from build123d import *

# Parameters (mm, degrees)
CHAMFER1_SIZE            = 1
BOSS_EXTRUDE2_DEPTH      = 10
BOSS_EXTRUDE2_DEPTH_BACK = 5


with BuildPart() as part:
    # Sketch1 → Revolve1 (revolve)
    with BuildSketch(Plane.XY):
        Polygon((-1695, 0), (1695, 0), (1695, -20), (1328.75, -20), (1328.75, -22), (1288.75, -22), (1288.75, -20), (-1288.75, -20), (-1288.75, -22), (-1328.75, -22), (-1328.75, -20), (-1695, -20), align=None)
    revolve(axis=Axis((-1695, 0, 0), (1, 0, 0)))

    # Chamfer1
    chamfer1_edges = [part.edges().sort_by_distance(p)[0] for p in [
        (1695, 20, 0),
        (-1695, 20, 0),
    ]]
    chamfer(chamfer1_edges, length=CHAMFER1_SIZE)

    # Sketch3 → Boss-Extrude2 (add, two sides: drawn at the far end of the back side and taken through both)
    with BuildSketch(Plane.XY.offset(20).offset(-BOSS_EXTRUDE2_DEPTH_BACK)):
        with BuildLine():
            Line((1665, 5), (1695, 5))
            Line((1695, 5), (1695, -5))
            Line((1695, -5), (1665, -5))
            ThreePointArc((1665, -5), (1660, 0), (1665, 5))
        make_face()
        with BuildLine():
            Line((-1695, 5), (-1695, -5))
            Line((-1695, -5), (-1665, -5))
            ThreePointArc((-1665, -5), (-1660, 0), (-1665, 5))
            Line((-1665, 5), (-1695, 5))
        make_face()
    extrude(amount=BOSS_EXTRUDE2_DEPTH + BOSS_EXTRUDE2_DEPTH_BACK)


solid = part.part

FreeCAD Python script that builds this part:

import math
import FreeCAD as App
import Part
import Sketcher
from FreeCAD import Vector
Q = App.Units.Quantity


def edges_at(feature, points):
    """Names of the edges that pass closest to the given points."""
    edges = feature.Shape.Edges
    near = lambda p: min(range(len(edges)), key=lambda i: edges[i].distToShape(Part.Vertex(*p))[0])
    return sorted({f"Edge{near(p) + 1}" for p in points})

doc = App.newDocument("Part")
body = doc.addObject("PartDesign::Body", "Body")

sketch1 = body.newObject("Sketcher::SketchObject", "Sketch")
sketch1.AttachmentSupport = (doc.getObject("XY_Plane"), [""])
sketch1.MapMode = "FlatFace"
sketch1.addGeometry([
    Part.LineSegment(Vector(1695, 0, 0), Vector(-1695, 0, 0)),
    Part.LineSegment(Vector(-1695, 0, 0), Vector(-1695, -20, 0)),
    Part.LineSegment(Vector(-1695, -20, 0), Vector(-1328.75, -20, 0)),
    Part.LineSegment(Vector(-1328.75, -20, 0), Vector(-1328.75, -22, 0)),
    Part.LineSegment(Vector(-1328.75, -22, 0), Vector(-1288.75, -22, 0)),
    Part.LineSegment(Vector(-1288.75, -22, 0), Vector(-1288.75, -20, 0)),
    Part.LineSegment(Vector(-1288.75, -20, 0), Vector(1288.75, -20, 0)),
    Part.LineSegment(Vector(1288.75, -20, 0), Vector(1288.75, -22, 0)),
    Part.LineSegment(Vector(1288.75, -22, 0), Vector(1328.75, -22, 0)),
    Part.LineSegment(Vector(1328.75, -22, 0), Vector(1328.75, -20, 0)),
    Part.LineSegment(Vector(1328.75, -20, 0), Vector(1695, -20, 0)),
    Part.LineSegment(Vector(1695, -20, 0), Vector(1695, 0, 0)),
], False)
sketch1.addConstraint([
    Sketcher.Constraint("Coincident", 0, 2, 1, 1),
    Sketcher.Constraint("Coincident", 1, 2, 2, 1),
    Sketcher.Constraint("Coincident", 2, 2, 3, 1),
    Sketcher.Constraint("Coincident", 3, 2, 4, 1),
    Sketcher.Constraint("Coincident", 4, 2, 5, 1),
    Sketcher.Constraint("Coincident", 5, 2, 6, 1),
    Sketcher.Constraint("Coincident", 6, 2, 7, 1),
    Sketcher.Constraint("Coincident", 7, 2, 8, 1),
    Sketcher.Constraint("Coincident", 8, 2, 9, 1),
    Sketcher.Constraint("Coincident", 9, 2, 10, 1),
    Sketcher.Constraint("Coincident", 10, 2, 11, 1),
    Sketcher.Constraint("Coincident", 11, 2, 0, 1),
    Sketcher.Constraint("Horizontal", 0),
    Sketcher.Constraint("Vertical", 1),
    Sketcher.Constraint("Horizontal", 2),
    Sketcher.Constraint("Vertical", 3),
    Sketcher.Constraint("Horizontal", 4),
    Sketcher.Constraint("Vertical", 5),
    Sketcher.Constraint("Horizontal", 6),
    Sketcher.Constraint("Vertical", 7),
    Sketcher.Constraint("Horizontal", 8),
    Sketcher.Constraint("Vertical", 9),
    Sketcher.Constraint("Horizontal", 10),
    Sketcher.Constraint("Vertical", 11),
    Sketcher.Constraint("Symmetric", 0, 2, 11, 2, -1, 1),
    Sketcher.Constraint("Symmetric", 4, 2, 7, 2, -2),
    Sketcher.Constraint("Symmetric", 2, 2, 9, 2, -2),
    Sketcher.Constraint("Horizontal", 2, 2, 5, 2),
    Sketcher.Constraint("DistanceX", 0, 2, 0, 1, Q("3390 mm")),
    Sketcher.Constraint("DistanceX", 4, 1, 4, 2, Q("40 mm")),
    Sketcher.Constraint("DistanceY", 1, 2, 1, 1, Q("20 mm")),
    Sketcher.Constraint("DistanceY", 3, 2, 3, 1, Q("2 mm")),
    Sketcher.Constraint("DistanceX", 6, 1, 6, 2, Q("2577.5 mm")),
])
revolution = body.newObject("PartDesign::Revolution", "Revolution")
revolution.Profile = sketch1
revolution.ReferenceAxis = (sketch1, ["H_Axis"])
revolution.Angle = 360
doc.recompute()

chamfer = body.newObject("PartDesign::Chamfer", "Chamfer")
chamfer.Base = (revolution, edges_at(revolution, [(1695, 20, 0), (-1695, 20, 0)]))
chamfer.Size = 1

sketch2 = body.newObject("Sketcher::SketchObject", "Sketch001")
sketch2.AttachmentSupport = (doc.getObject("XY_Plane"), [""])
sketch2.MapMode = "FlatFace"
sketch2.AttachmentOffset = App.Placement(Vector(0, 0, 20), App.Rotation())
sketch2.addGeometry([
    Part.LineSegment(Vector(1695, 5, 0), Vector(1665, 5, 0)),
    Part.ArcOfCircle(Part.Circle(Vector(1665, 0, 0), Vector(0, 0, 1), 5), math.radians(90), math.radians(270)),
    Part.LineSegment(Vector(1665, -5, 0), Vector(1695, -5, 0)),
    Part.LineSegment(Vector(1695, -5, 0), Vector(1695, 5, 0)),
    Part.LineSegment(Vector(-1695, 5, 0), Vector(-1695, -5, 0)),
    Part.LineSegment(Vector(-1695, -5, 0), Vector(-1665, -5, 0)),
    Part.ArcOfCircle(Part.Circle(Vector(-1665, 0, 0), Vector(0, 0, 1), 5), math.radians(-90), math.radians(90)),
    Part.LineSegment(Vector(-1665, 5, 0), Vector(-1695, 5, 0)),
], False)
sketch2.addConstraint([
    Sketcher.Constraint("Tangent", 0, 2, 1, 1),
    Sketcher.Constraint("Tangent", 1, 2, 2, 1),
    Sketcher.Constraint("Coincident", 2, 2, 3, 1),
    Sketcher.Constraint("Coincident", 3, 2, 0, 1),
    Sketcher.Constraint("Coincident", 4, 2, 5, 1),
    Sketcher.Constraint("Tangent", 5, 2, 6, 1),
    Sketcher.Constraint("Tangent", 6, 2, 7, 1),
    Sketcher.Constraint("Coincident", 7, 2, 4, 1),
    Sketcher.Constraint("Horizontal", 0),
    Sketcher.Constraint("Horizontal", 2),
    Sketcher.Constraint("Vertical", 3),
    Sketcher.Constraint("Vertical", 4),
    Sketcher.Constraint("Horizontal", 5),
    Sketcher.Constraint("Horizontal", 7),
    Sketcher.Constraint("Equal", 1, 6),
    Sketcher.Constraint("Symmetric", 1, 3, 6, 3, -1, 1),
    Sketcher.Constraint("Symmetric", 2, 2, 4, 2, -2),
    Sketcher.Constraint("Radius", 1, Q("5 mm")),
    Sketcher.Constraint("DistanceX", 0, 2, 0, 1, Q("30 mm")),
    Sketcher.Constraint("DistanceX", -1, 1, 1, 3, Q("1665 mm")),
])
pad1 = body.newObject("PartDesign::Pad", "Pad")
pad1.Profile = sketch2
pad1.Type = "TwoLengths"
pad1.Length = 10
pad1.Length2 = 5

doc.recompute()
